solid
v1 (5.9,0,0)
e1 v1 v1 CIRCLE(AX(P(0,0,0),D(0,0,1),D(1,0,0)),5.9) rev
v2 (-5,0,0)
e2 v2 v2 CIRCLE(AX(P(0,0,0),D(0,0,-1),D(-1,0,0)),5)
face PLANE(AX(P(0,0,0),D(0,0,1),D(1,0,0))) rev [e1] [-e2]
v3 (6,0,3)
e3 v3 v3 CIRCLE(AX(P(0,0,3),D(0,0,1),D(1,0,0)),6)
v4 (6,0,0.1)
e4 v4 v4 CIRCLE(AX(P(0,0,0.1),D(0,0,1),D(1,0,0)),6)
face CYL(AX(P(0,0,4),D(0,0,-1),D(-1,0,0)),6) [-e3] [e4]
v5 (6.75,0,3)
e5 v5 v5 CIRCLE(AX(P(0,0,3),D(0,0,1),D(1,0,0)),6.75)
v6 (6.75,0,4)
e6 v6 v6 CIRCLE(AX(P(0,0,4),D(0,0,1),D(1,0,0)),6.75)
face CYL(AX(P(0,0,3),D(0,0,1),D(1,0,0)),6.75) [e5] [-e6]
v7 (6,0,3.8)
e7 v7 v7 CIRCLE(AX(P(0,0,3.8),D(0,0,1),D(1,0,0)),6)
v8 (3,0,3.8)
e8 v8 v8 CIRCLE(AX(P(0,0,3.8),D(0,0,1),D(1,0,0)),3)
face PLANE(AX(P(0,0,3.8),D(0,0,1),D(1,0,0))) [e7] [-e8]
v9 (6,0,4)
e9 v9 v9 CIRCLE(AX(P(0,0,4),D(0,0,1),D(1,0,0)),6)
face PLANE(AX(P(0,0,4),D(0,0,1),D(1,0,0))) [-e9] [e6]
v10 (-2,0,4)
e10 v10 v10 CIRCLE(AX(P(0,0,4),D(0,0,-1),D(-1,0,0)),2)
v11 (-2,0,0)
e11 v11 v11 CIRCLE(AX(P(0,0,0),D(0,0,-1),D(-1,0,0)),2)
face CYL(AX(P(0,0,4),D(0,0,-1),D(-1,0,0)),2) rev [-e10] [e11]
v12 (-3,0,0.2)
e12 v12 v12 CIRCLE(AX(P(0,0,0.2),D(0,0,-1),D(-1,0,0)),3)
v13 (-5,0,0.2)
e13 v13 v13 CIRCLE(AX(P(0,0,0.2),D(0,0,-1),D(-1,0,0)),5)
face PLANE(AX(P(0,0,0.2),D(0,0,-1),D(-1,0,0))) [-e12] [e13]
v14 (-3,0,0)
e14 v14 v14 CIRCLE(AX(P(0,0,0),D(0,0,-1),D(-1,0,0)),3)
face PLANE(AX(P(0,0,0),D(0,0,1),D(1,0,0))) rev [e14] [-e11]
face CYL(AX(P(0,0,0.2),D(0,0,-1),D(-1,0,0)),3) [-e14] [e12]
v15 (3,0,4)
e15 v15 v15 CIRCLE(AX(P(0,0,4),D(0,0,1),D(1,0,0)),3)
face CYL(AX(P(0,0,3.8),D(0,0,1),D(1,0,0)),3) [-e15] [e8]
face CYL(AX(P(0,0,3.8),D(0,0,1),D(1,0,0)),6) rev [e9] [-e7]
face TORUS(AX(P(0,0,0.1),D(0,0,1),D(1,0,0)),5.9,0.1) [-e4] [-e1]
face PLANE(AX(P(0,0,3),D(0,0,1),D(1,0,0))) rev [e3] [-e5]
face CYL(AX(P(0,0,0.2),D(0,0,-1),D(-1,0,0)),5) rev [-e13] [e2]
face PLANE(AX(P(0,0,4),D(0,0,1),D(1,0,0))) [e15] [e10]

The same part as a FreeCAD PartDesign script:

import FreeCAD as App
import Part
import Sketcher
from FreeCAD import Vector
Q = App.Units.Quantity


def edges_at(feature, points):
    """Names of the edges that pass closest to the given points."""
    edges = feature.Shape.Edges
    near = lambda p: min(range(len(edges)), key=lambda i: edges[i].distToShape(Part.Vertex(*p))[0])
    return sorted({f"Edge{near(p) + 1}" for p in points})

doc = App.newDocument("Part")
body = doc.addObject("PartDesign::Body", "Body")

# Sketch on XY plane
sketch1 = body.newObject("Sketcher::SketchObject", "Sketch")
sketch1.AttachmentSupport = (doc.getObject("XY_Plane"), [""])
sketch1.MapMode = "FlatFace"
sketch1.addGeometry(Part.Circle(Vector(0, 0, 0), Vector(0, 0, 1), 6), False)
sketch1.addConstraint([
    Sketcher.Constraint("Coincident", 0, 3, -1, 1),
    Sketcher.Constraint("Diameter", 0, Q("12 mm")),
])
pad1 = body.newObject("PartDesign::Pad", "Pad")
pad1.Profile = sketch1
pad1.Length = 4

# Sketch on XY plane
sketch2 = body.newObject("Sketcher::SketchObject", "Sketch001")
sketch2.AttachmentSupport = (doc.getObject("XY_Plane"), [""])
sketch2.MapMode = "FlatFace"
sketch2.AttachmentOffset = App.Placement(Vector(0, 0, 4), App.Rotation())
sketch2.addGeometry(Part.Circle(Vector(0, 0, 0), Vector(0, 0, 1), 7), False)
sketch2.addConstraint([
    Sketcher.Constraint("Coincident", 0, 3, -1, 1),
    Sketcher.Constraint("Diameter", 0, Q("13.5 mm")),
])
pad2 = body.newObject("PartDesign::Pad", "Pad001")
pad2.Profile = sketch2
pad2.Length = 1
pad2.Reversed = True

# Sketch on XY plane
sketch3 = body.newObject("Sketcher::SketchObject", "Sketch002")
sketch3.AttachmentSupport = (doc.getObject("XY_Plane"), [""])
sketch3.MapMode = "FlatFace"
sketch3.addGeometry(Part.Circle(Vector(0, 0, 0), Vector(0, 0, 1), 2), False)
sketch3.addConstraint([
    Sketcher.Constraint("Coincident", 0, 3, -1, 1),
    Sketcher.Constraint("Diameter", 0, Q("4 mm")),
])
pocket1 = body.newObject("PartDesign::Pocket", "Pocket")
pocket1.Profile = sketch3
pocket1.Type = "ThroughAll"
pocket1.Reversed = True

# Sketch on XY plane
sketch4 = body.newObject("Sketcher::SketchObject", "Sketch003")
sketch4.AttachmentSupport = (doc.getObject("XY_Plane"), [""])
sketch4.MapMode = "FlatFace"
sketch4.addGeometry([
    Part.Circle(Vector(0, 0, 0), Vector(0, 0, 1), 5),
    Part.Circle(Vector(0, 0, 0), Vector(0, 0, 1), 3),
], False)
sketch4.addConstraint([
    Sketcher.Constraint("Coincident", 0, 3, -1, 1),
    Sketcher.Constraint("Coincident", 1, 3, -1, 1),
    Sketcher.Constraint("Diameter", 0, Q("10 mm")),
    Sketcher.Constraint("Diameter", 1, Q("6 mm")),
])
pocket2 = body.newObject("PartDesign::Pocket", "Pocket001")
pocket2.Profile = sketch4
pocket2.Length = 0.2
pocket2.Reversed = True

# Sketch on XY plane
sketch5 = body.newObject("Sketcher::SketchObject", "Sketch004")
sketch5.AttachmentSupport = (doc.getObject("XY_Plane"), [""])
sketch5.MapMode = "FlatFace"
sketch5.AttachmentOffset = App.Placement(Vector(0, 0, 4), App.Rotation())
sketch5.addGeometry([
    Part.Circle(Vector(0, 0, 0), Vector(0, 0, 1), 6),
    Part.Circle(Vector(0, 0, 0), Vector(0, 0, 1), 3),
], False)
sketch5.addConstraint([
    Sketcher.Constraint("Coincident", 0, 3, -1, 1),
    Sketcher.Constraint("Coincident", 1, 3, -1, 1),
    Sketcher.Constraint("Diameter", 0, Q("12 mm")),
    Sketcher.Constraint("Diameter", 1, Q("6 mm")),
])
pocket3 = body.newObject("PartDesign::Pocket", "Pocket002")
pocket3.Profile = sketch5
pocket3.Length = 0.2
doc.recompute()

fillet = body.newObject("PartDesign::Fillet", "Fillet")
fillet.Base = (pocket3, edges_at(pocket3, [(-6, 0, 0)]))
fillet.Radius = 0.1

doc.recompute()
